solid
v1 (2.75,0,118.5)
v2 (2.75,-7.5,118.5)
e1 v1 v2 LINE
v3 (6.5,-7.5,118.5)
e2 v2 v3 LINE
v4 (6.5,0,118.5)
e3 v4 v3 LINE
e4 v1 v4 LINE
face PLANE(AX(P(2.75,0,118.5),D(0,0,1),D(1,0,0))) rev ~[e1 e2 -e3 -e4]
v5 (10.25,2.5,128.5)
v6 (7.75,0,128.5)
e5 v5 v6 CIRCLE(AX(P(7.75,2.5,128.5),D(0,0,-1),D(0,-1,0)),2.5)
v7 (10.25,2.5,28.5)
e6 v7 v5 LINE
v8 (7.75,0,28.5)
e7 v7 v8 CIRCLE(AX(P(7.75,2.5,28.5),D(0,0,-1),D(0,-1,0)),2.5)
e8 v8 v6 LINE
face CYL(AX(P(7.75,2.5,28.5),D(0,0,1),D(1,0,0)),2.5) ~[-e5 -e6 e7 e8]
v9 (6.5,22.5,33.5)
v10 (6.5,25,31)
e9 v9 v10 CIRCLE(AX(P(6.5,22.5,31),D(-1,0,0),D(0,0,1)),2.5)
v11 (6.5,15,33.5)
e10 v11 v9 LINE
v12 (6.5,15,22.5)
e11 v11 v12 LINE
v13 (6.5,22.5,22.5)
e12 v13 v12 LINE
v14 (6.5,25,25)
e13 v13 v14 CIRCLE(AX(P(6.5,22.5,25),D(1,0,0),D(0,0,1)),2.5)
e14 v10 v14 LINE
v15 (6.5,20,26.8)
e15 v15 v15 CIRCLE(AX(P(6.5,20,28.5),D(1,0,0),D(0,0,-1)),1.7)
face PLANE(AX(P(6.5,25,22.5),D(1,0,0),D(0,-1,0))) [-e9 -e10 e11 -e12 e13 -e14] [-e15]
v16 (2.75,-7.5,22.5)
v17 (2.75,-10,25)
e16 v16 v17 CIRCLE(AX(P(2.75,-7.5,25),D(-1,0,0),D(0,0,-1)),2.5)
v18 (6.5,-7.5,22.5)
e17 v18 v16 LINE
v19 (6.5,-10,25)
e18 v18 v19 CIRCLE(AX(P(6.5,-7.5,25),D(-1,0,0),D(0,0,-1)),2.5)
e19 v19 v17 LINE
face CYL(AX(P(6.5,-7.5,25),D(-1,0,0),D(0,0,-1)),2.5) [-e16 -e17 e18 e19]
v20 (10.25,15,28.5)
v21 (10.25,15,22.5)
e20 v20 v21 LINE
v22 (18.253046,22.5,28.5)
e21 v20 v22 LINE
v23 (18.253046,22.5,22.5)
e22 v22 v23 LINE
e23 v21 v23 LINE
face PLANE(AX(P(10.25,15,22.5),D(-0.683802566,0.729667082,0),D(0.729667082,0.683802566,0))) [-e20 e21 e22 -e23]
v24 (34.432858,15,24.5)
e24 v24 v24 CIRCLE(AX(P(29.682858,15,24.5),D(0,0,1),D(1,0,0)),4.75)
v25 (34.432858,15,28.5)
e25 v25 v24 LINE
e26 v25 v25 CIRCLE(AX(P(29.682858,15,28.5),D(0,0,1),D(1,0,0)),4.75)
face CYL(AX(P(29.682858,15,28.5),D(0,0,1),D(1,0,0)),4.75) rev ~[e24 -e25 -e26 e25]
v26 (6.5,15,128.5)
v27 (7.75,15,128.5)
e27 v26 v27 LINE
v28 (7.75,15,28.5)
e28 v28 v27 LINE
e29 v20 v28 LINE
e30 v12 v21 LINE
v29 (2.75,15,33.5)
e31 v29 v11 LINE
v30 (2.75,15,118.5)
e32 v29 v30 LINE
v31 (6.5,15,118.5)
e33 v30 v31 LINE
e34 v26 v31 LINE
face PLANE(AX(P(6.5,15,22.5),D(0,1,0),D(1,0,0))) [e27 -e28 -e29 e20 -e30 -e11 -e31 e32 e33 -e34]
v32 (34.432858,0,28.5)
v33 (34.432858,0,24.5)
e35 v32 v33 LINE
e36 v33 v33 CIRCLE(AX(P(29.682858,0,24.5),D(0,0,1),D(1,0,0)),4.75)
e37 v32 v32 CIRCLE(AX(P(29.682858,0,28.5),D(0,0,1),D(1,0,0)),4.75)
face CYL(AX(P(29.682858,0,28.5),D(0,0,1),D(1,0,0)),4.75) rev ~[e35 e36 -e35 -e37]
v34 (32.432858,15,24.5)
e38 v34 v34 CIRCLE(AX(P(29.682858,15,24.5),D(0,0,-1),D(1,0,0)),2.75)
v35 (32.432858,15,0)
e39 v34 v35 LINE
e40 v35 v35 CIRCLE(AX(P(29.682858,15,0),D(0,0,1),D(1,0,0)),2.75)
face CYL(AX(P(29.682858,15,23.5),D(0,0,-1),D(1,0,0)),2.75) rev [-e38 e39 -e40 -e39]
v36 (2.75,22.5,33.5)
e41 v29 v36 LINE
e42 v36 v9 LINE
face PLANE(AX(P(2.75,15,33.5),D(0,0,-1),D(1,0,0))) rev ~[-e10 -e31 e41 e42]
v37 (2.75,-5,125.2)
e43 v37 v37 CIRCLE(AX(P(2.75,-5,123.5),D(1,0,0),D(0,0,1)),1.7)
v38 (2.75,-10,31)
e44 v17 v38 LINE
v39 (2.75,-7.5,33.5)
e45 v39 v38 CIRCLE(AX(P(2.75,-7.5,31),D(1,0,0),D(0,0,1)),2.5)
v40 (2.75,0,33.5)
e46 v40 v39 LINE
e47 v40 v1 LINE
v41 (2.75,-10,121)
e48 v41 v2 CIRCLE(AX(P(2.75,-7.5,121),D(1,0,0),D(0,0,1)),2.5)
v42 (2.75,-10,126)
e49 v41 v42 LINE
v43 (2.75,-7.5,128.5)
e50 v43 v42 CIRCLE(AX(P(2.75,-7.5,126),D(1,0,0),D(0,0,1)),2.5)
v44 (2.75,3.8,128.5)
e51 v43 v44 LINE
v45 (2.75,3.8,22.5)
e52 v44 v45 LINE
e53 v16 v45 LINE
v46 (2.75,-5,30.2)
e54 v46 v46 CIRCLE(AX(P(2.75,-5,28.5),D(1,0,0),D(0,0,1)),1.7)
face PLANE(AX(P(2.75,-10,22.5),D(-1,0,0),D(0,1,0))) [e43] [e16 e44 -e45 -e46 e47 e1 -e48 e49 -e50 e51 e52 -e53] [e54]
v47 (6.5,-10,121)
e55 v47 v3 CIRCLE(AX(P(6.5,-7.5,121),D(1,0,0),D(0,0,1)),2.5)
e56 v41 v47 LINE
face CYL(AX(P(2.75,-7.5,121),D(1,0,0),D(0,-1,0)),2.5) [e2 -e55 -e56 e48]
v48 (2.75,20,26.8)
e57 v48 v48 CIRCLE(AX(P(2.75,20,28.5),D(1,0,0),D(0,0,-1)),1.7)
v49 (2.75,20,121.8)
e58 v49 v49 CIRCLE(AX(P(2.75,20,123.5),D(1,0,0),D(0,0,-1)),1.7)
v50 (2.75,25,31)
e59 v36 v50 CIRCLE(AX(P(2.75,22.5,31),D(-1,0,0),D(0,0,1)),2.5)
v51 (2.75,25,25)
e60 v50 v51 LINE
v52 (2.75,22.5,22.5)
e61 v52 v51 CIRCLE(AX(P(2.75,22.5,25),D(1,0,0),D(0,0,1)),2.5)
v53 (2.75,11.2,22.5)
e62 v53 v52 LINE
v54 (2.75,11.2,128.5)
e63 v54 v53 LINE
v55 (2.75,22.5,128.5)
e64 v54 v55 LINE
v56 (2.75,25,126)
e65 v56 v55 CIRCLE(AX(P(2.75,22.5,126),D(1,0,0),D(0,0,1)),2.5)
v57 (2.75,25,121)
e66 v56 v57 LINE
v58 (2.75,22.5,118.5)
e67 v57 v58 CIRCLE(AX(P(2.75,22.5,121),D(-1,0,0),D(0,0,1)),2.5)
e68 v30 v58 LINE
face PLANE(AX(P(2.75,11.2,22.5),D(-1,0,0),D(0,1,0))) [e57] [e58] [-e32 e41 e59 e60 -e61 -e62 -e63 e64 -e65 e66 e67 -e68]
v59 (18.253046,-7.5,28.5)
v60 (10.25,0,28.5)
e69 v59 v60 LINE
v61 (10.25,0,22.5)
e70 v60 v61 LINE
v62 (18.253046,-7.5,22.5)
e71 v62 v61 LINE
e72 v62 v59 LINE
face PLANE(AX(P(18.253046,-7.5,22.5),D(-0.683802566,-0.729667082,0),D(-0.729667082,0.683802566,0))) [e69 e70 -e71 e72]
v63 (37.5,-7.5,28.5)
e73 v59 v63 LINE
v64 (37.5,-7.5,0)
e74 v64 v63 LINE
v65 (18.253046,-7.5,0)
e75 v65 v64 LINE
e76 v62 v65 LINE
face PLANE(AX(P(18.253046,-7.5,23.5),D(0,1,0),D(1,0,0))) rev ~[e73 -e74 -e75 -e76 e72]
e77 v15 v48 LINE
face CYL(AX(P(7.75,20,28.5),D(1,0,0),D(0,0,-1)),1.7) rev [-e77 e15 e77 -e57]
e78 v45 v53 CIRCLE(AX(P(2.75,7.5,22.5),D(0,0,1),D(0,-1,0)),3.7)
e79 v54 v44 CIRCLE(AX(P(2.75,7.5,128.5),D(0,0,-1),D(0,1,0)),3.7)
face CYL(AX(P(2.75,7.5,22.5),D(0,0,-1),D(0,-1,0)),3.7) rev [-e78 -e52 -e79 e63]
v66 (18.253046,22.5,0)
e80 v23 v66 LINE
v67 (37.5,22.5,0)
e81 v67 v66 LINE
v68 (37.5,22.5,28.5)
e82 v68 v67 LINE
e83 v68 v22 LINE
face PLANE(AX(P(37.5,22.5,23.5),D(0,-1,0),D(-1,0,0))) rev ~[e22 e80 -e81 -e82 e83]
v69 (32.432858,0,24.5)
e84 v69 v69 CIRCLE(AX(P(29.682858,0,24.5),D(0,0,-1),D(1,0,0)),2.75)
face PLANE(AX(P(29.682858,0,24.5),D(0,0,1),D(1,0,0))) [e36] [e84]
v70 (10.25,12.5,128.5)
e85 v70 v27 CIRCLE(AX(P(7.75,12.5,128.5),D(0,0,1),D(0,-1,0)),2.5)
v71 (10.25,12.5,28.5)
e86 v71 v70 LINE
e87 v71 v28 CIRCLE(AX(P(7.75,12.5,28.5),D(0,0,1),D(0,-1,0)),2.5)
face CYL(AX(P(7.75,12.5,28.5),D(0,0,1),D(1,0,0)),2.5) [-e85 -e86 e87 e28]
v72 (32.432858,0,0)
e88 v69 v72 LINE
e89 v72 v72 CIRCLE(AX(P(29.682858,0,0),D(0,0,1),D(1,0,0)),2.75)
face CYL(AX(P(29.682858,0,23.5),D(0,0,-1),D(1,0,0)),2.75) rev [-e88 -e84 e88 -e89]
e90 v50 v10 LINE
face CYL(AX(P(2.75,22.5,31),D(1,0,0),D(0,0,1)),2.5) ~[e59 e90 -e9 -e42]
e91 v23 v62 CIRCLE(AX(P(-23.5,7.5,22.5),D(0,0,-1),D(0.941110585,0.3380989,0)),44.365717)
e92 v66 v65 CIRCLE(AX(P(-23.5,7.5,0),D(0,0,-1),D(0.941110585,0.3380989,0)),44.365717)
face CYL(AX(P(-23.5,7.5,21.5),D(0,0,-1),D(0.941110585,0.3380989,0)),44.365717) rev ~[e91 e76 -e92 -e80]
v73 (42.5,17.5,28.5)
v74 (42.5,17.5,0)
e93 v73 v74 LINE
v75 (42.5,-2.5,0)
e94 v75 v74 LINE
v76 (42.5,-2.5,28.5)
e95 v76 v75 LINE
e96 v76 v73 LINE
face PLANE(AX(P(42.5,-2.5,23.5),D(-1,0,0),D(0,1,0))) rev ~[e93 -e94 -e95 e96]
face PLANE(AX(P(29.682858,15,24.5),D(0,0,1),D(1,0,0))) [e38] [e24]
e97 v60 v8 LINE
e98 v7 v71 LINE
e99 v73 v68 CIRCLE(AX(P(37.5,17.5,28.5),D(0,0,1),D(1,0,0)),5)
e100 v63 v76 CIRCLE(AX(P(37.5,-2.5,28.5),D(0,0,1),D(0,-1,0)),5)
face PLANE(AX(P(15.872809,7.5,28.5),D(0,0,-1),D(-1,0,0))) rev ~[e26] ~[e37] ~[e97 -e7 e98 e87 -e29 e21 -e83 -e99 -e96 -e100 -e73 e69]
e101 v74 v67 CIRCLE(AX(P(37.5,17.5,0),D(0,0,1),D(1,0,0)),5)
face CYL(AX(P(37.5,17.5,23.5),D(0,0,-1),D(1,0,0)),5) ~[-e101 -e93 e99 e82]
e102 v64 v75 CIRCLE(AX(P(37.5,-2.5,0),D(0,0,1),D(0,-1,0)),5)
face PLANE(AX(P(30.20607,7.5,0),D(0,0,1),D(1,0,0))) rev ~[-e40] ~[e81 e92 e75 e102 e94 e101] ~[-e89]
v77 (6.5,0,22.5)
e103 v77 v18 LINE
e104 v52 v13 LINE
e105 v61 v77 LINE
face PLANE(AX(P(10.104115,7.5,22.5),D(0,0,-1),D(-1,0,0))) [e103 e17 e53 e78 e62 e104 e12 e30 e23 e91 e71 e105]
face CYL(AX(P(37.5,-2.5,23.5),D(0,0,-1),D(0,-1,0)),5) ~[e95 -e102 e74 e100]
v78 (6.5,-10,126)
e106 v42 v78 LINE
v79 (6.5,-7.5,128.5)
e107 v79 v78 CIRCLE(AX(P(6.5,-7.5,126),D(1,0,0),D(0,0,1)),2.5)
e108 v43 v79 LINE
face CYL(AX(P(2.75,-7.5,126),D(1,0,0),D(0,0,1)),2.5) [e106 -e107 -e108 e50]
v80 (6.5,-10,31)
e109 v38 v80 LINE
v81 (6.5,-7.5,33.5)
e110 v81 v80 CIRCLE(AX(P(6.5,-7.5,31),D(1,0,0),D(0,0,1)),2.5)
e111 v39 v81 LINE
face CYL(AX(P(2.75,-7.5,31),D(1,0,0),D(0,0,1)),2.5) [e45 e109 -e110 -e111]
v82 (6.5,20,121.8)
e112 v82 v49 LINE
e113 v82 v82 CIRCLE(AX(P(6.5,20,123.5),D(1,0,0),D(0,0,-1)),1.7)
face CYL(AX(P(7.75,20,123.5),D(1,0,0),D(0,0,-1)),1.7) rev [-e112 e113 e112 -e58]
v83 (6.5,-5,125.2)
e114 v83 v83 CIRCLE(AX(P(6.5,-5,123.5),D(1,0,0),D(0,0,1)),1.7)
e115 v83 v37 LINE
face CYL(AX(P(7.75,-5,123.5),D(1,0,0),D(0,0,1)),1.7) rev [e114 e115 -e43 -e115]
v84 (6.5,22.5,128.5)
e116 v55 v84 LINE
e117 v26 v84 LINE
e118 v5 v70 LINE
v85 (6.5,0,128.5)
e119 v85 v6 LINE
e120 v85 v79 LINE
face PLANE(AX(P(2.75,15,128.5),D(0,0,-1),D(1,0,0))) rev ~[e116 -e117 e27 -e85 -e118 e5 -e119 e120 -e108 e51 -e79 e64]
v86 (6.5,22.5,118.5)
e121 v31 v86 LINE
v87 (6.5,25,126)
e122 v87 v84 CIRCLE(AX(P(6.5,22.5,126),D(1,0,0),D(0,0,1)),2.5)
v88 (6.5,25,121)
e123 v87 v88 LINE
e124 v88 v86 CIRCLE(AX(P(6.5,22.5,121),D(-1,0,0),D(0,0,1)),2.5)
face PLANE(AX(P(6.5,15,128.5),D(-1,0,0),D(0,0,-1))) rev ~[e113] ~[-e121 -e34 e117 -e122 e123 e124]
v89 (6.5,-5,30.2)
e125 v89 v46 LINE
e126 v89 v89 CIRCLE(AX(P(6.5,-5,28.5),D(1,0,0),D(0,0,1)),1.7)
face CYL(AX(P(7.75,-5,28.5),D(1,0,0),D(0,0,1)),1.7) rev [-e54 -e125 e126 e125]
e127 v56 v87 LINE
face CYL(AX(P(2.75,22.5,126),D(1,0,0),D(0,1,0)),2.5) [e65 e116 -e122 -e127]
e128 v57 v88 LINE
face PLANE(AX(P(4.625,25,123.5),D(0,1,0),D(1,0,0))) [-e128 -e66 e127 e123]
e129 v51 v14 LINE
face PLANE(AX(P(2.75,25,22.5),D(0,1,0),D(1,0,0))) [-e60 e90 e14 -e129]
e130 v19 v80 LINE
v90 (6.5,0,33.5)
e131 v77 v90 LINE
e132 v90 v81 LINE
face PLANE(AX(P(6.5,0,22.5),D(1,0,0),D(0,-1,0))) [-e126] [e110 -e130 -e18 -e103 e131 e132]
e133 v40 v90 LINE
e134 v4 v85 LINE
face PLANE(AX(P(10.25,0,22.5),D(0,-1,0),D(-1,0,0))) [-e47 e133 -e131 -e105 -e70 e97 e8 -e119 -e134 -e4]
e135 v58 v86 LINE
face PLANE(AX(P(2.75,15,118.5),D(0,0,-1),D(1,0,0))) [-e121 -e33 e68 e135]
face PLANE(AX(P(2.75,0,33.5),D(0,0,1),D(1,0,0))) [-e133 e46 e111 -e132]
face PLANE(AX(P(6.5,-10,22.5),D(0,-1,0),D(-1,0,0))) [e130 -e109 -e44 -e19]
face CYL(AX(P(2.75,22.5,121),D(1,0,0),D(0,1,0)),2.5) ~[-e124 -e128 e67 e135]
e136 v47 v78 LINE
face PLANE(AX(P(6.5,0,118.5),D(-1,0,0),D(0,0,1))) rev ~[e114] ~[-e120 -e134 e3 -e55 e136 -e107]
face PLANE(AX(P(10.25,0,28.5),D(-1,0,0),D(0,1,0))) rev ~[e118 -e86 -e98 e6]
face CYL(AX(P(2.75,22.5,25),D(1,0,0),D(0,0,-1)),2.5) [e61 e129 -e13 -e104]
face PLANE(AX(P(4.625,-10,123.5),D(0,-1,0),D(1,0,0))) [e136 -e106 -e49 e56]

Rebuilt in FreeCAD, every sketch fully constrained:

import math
import FreeCAD as App
import Part
import Sketcher

V = App.Vector


def edges_at(feature, points):
    """Names of the edges that pass closest to the given points."""
    edges = feature.Shape.Edges
    near = lambda p: min(range(len(edges)), key=lambda i: edges[i].distToShape(Part.Vertex(*p))[0])
    return sorted({f"Edge{near(p) + 1}" for p in points})


def add_polygon(sketch, points):
    """Adds a closed chain of lines whose ends are joined by coincident constraints."""
    first, n = sketch.GeometryCount, len(points)
    for a, b in zip(points, points[1:] + points[:1]):
        sketch.addGeometry(Part.LineSegment(App.Vector(*a, 0), App.Vector(*b, 0)), False)
    for i in range(n):
        sketch.addConstraint(Sketcher.Constraint("Coincident", first + i, 2, first + (i + 1) % n, 1))

doc = App.newDocument("Part")
body = doc.addObject("PartDesign::Body", "Body")

# Sketch on XY plane
sketch1 = body.newObject("Sketcher::SketchObject", "Sketch")
sketch1.AttachmentSupport = (doc.getObject("XY_Plane"), [""])
sketch1.MapMode = "FlatFace"
sketch1.addGeometry([
    Part.ArcOfCircle(Part.Circle(V(37.5, -2.5, 0), V(0, 0, 1), 5), math.radians(-90), math.radians(0)),  # 0
    Part.LineSegment(V(42.5, -2.5, 0), V(42.5, 17.5, 0)),  # 1
    Part.ArcOfCircle(Part.Circle(V(37.5, 17.5, 0), V(0, 0, 1), 5), math.radians(0), math.radians(90)),  # 2
    Part.LineSegment(V(37.5, 22.5, 0), V(18.3, 22.5, 0)),  # 3
    Part.ArcOfCircle(Part.Circle(V(-23.5, 7.5, 0), V(0, 0, 1), 44.4), math.radians(-20), math.radians(20)),  # 4
    Part.LineSegment(V(18.3, -7.5, 0), V(37.5, -7.5, 0)),  # 5
    Part.Circle(V(29.7, 0, 0), V(0, 0, 1), 2.8),  # 6
    Part.Circle(V(29.7, 15, 0), V(0, 0, 1), 2.8),  # 7
], False)
sketch1.addConstraint([
    Sketcher.Constraint("Tangent", 0, 2, 1, 1),
    Sketcher.Constraint("Tangent", 1, 2, 2, 1),
    Sketcher.Constraint("Tangent", 2, 2, 3, 1),
    Sketcher.Constraint("Coincident", 3, 2, 4, 2),
    Sketcher.Constraint("Coincident", 4, 1, 5, 1),
    Sketcher.Constraint("Tangent", 5, 2, 0, 1),
    Sketcher.Constraint("Vertical", 1),
    Sketcher.Constraint("Horizontal", 3),
    Sketcher.Constraint("Horizontal", 5),
    Sketcher.Constraint("Equal", 0, 2),
    Sketcher.Constraint("Equal", 6, 7),
    Sketcher.Constraint("PointOnObject", 6, 3, -1),
    Sketcher.Constraint("Vertical", 6, 3, 7, 3),
    Sketcher.Constraint("Vertical", 3, 2, 4, 1),
    Sketcher.Constraint("Radius", 0, 5.0),
    Sketcher.Constraint("Diameter", 6, 5.5),
    Sketcher.Constraint("DistanceY", 1, 1, 1, 2, 20.0),
    Sketcher.Constraint("DistanceY", -1, 1, 7, 3, 15.0),
    Sketcher.Constraint("DistanceX", 4, 3, 0, 3, 61.0),
    Sketcher.Constraint("DistanceX", -1, 1, 0, 3, 37.5),
    Sketcher.Constraint("DistanceY", 0, 3, -1, 1, 2.5),
    Sketcher.Constraint("Radius", 4, 44.365717),
    Sketcher.Constraint("DistanceX", -1, 1, 6, 3, 29.682858),
])
pad1 = body.newObject("PartDesign::Pad", "Pad")
pad1.Profile = sketch1
pad1.Length = 21.5

# Sketch on XY plane
sketch2 = body.newObject("Sketcher::SketchObject", "Sketch001")
sketch2.AttachmentSupport = (doc.getObject("XY_Plane"), [""])
sketch2.MapMode = "FlatFace"
sketch2.AttachmentOffset = App.Placement(V(0, 0, 21.5), App.Rotation())
sketch2.addGeometry([
    Part.LineSegment(V(18.3, -7.5, 0), V(37.5, -7.5, 0)),  # 0
    Part.ArcOfCircle(Part.Circle(V(37.5, -2.5, 0), V(0, 0, 1), 5), math.radians(-90), math.radians(0)),  # 1
    Part.LineSegment(V(42.5, -2.5, 0), V(42.5, 17.5, 0)),  # 2
    Part.ArcOfCircle(Part.Circle(V(37.5, 17.5, 0), V(0, 0, 1), 5), math.radians(0), math.radians(90)),  # 3
    Part.LineSegment(V(37.5, 22.5, 0), V(18.3, 22.5, 0)),  # 4
    Part.ArcOfCircle(Part.Circle(V(-23.5, 7.5, 0), V(0, 0, 1), 44.4), math.radians(-20), math.radians(20)),  # 5
    Part.Circle(V(29.7, 0, 0), V(0, 0, 1), 2.8),  # 6
    Part.Circle(V(29.7, 15, 0), V(0, 0, 1), 2.8),  # 7
], False)
sketch2.addConstraint([
    Sketcher.Constraint("Tangent", 0, 2, 1, 1),
    Sketcher.Constraint("Tangent", 1, 2, 2, 1),
    Sketcher.Constraint("Tangent", 2, 2, 3, 1),
    Sketcher.Constraint("Tangent", 3, 2, 4, 1),
    Sketcher.Constraint("Coincident", 4, 2, 5, 2),
    Sketcher.Constraint("Coincident", 5, 1, 0, 1),
    Sketcher.Constraint("Horizontal", 0),
    Sketcher.Constraint("Vertical", 2),
    Sketcher.Constraint("Horizontal", 4),
    Sketcher.Constraint("Equal", 1, 3),
    Sketcher.Constraint("Equal", 6, 7),
    Sketcher.Constraint("PointOnObject", 6, 3, -1),
    Sketcher.Constraint("Vertical", 6, 3, 7, 3),
    Sketcher.Constraint("Vertical", 4, 2, 5, 1),
    Sketcher.Constraint("Radius", 1, 5.0),
    Sketcher.Constraint("Diameter", 6, 5.5),
    Sketcher.Constraint("DistanceY", 2, 1, 2, 2, 20.0),
    Sketcher.Constraint("DistanceY", -1, 1, 7, 3, 15.0),
    Sketcher.Constraint("DistanceX", 5, 3, 1, 3, 61.0),
    Sketcher.Constraint("DistanceX", -1, 1, 1, 3, 37.5),
    Sketcher.Constraint("DistanceY", 1, 3, -1, 1, 2.5),
    Sketcher.Constraint("Radius", 5, 44.365717),
    Sketcher.Constraint("DistanceX", -1, 1, 6, 3, 29.682858),
])
pad2 = body.newObject("PartDesign::Pad", "Pad001")
pad2.Profile = sketch2
pad2.Length = 2

# Sketch on XY plane
sketch3 = body.newObject("Sketcher::SketchObject", "Sketch002")
sketch3.AttachmentSupport = (doc.getObject("XY_Plane"), [""])
sketch3.MapMode = "FlatFace"
sketch3.AttachmentOffset = App.Placement(V(0, 0, 23.5), App.Rotation())
sketch3.addGeometry([
    Part.LineSegment(V(18.3, 22.5, 0), V(10.2, 15, 0)),  # 0
    Part.LineSegment(V(10.2, 15, 0), V(-4.8, 15, 0)),  # 1
    Part.LineSegment(V(-4.8, 15, 0), V(-4.8, 0, 0)),  # 2
    Part.LineSegment(V(-4.8, 0, 0), V(10.2, 0, 0)),  # 3
    Part.LineSegment(V(10.2, 0, 0), V(18.3, -7.5, 0)),  # 4
    Part.LineSegment(V(18.3, -7.5, 0), V(37.5, -7.5, 0)),  # 5
    Part.ArcOfCircle(Part.Circle(V(37.5, -2.5, 0), V(0, 0, 1), 5), math.radians(-90), math.radians(0)),  # 6
    Part.LineSegment(V(42.5, -2.5, 0), V(42.5, 17.5, 0)),  # 7
    Part.ArcOfCircle(Part.Circle(V(37.5, 17.5, 0), V(0, 0, 1), 5), math.radians(0), math.radians(90)),  # 8
    Part.LineSegment(V(37.5, 22.5, 0), V(18.3, 22.5, 0)),  # 9
    Part.Circle(V(2.8, 7.5, 0), V(0, 0, 1), 3.7),  # 10
    Part.Circle(V(29.7, 15, 0), V(0, 0, 1), 2.8),  # 11
    Part.Circle(V(29.7, 0, 0), V(0, 0, 1), 2.8),  # 12
], False)
sketch3.addConstraint([
    Sketcher.Constraint("Coincident", 0, 2, 1, 1),
    Sketcher.Constraint("Coincident", 1, 2, 2, 1),
    Sketcher.Constraint("Coincident", 2, 2, 3, 1),
    Sketcher.Constraint("Coincident", 3, 2, 4, 1),
    Sketcher.Constraint("Coincident", 4, 2, 5, 1),
    Sketcher.Constraint("Tangent", 5, 2, 6, 1),
    Sketcher.Constraint("Tangent", 6, 2, 7, 1),
    Sketcher.Constraint("Tangent", 7, 2, 8, 1),
    Sketcher.Constraint("Tangent", 8, 2, 9, 1),
    Sketcher.Constraint("Coincident", 9, 2, 0, 1),
    Sketcher.Constraint("Horizontal", 1),
    Sketcher.Constraint("Vertical", 2),
    Sketcher.Constraint("Horizontal", 3),
    Sketcher.Constraint("Horizontal", 5),
    Sketcher.Constraint("Vertical", 7),
    Sketcher.Constraint("Horizontal", 9),
    Sketcher.Constraint("Equal", 6, 8),
    Sketcher.Constraint("Equal", 11, 12),
    Sketcher.Constraint("PointOnObject", 12, 3, -1),
    Sketcher.Constraint("PointOnObject", 2, 2, -1),
    Sketcher.Constraint("Horizontal", 11, 3, 0, 2),
    Sketcher.Constraint("Vertical", 11, 3, 12, 3),
    Sketcher.Constraint("Vertical", 0, 2, 3, 2),
    Sketcher.Constraint("Vertical", 4, 2, 9, 2),
    Sketcher.Constraint("Equal", 3, 2),
    Sketcher.Constraint("Equal", 0, 4),
    Sketcher.Constraint("Radius", 6, 5.0),
    Sketcher.Constraint("Diameter", 10, 7.4),
    Sketcher.Constraint("Diameter", 11, 5.5),
    Sketcher.Constraint("DistanceX", 1, 2, 1, 1, 15.0),
    Sketcher.Constraint("DistanceY", 7, 1, 7, 2, 20.0),
    Sketcher.Constraint("DistanceY", 6, 3, 10, 3, 10.0),
    Sketcher.Constraint("DistanceX", -1, 1, 6, 3, 37.5),
    Sketcher.Constraint("DistanceX", 10, 3, 0, 2, 7.5),
    Sketcher.Constraint("DistanceX", -1, 1, 10, 3, 2.75),
    Sketcher.Constraint("Distance", 0, 10.968078),
    Sketcher.Constraint("DistanceX", -1, 1, 11, 3, 29.682858),
])
pad3 = body.newObject("PartDesign::Pad", "Pad002")
pad3.Profile = sketch3
pad3.Length = 5

# Sketch on XY plane
sketch4 = body.newObject("Sketcher::SketchObject", "Sketch003")
sketch4.AttachmentSupport = (doc.getObject("XY_Plane"), [""])
sketch4.MapMode = "FlatFace"
sketch4.AttachmentOffset = App.Placement(V(0, 0, 28.5), App.Rotation())
add_polygon(sketch4, [(-4.8, 15), (-4.8, 0), (10.2, 0), (10.2, 15)])  # lines 0-3
sketch4.addGeometry(Part.Circle(V(2.8, 7.5, 0), V(0, 0, 1), 3.7), False)  # 4
sketch4.addConstraint([
    Sketcher.Constraint("Vertical", 0),
    Sketcher.Constraint("Horizontal", 1),
    Sketcher.Constraint("Vertical", 2),
    Sketcher.Constraint("Horizontal", 3),
    Sketcher.Constraint("PointOnObject", 0, 2, -1),
    Sketcher.Constraint("Equal", 3, 0),
    Sketcher.Constraint("Diameter", 4, 7.4),
    Sketcher.Constraint("DistanceX", 1, 1, 1, 2, 15.0),
    Sketcher.Constraint("DistanceY", -1, 1, 4, 3, 7.5),
    Sketcher.Constraint("DistanceX", 0, 2, 4, 3, 7.5),
    Sketcher.Constraint("DistanceX", -1, 1, 4, 3, 2.75),
])
pad4 = body.newObject("PartDesign::Pad", "Pad003")
pad4.Profile = sketch4
pad4.Length = 100

# Sketch on XY plane
sketch5 = body.newObject("Sketcher::SketchObject", "Sketch004")
sketch5.AttachmentSupport = (doc.getObject("XY_Plane"), [""])
sketch5.MapMode = "FlatFace"
sketch5.AttachmentOffset = App.Placement(V(0, 0, 128.5), App.Rotation())
sketch5.addGeometry([
    Part.ArcOfCircle(Part.Circle(V(2.8, 7.5, 0), V(0, 0, 1), 3.7), math.radians(90), math.radians(270)),  # 0
    Part.LineSegment(V(2.8, 11.2, 0), V(2.8, 15, 0)),  # 1
    Part.LineSegment(V(2.8, 15, 0), V(-4.8, 15, 0)),  # 2
    Part.LineSegment(V(-4.8, 15, 0), V(-4.8, 0, 0)),  # 3
    Part.LineSegment(V(-4.8, 0, 0), V(2.8, 0, 0)),  # 4
    Part.LineSegment(V(2.8, 0, 0), V(2.8, 3.8, 0)),  # 5
], False)
sketch5.addConstraint([
    Sketcher.Constraint("Coincident", 0, 1, 1, 1),
    Sketcher.Constraint("Coincident", 1, 2, 2, 1),
    Sketcher.Constraint("Coincident", 2, 2, 3, 1),
    Sketcher.Constraint("Coincident", 3, 2, 4, 1),
    Sketcher.Constraint("Coincident", 4, 2, 5, 1),
    Sketcher.Constraint("Coincident", 5, 2, 0, 2),
    Sketcher.Constraint("Vertical", 1),
    Sketcher.Constraint("Horizontal", 2),
    Sketcher.Constraint("Vertical", 3),
    Sketcher.Constraint("Horizontal", 4),
    Sketcher.Constraint("Vertical", 5),
    Sketcher.Constraint("PointOnObject", 3, 2, -1),
    Sketcher.Constraint("Vertical", 1, 2, 4, 2),
    Sketcher.Constraint("Equal", 1, 5),
    Sketcher.Constraint("Radius", 0, 3.7),
    Sketcher.Constraint("DistanceY", 3, 2, 3, 1, 15.0),
    Sketcher.Constraint("DistanceX", 2, 2, 2, 1, 7.5),
    Sketcher.Constraint("DistanceX", 2, 2, 0, 3, 7.5),
    Sketcher.Constraint("DistanceX", -1, 1, 0, 3, 2.75),
])
pocket1 = body.newObject("PartDesign::Pocket", "Pocket")
pocket1.Profile = sketch5
pocket1.Type = "ThroughAll"
pocket1.Midplane = True

# Sketch on XZ plane
sketch6 = body.newObject("Sketcher::SketchObject", "Sketch005")
sketch6.AttachmentSupport = (doc.getObject("XZ_Plane"), [""])
sketch6.MapMode = "FlatFace"
add_polygon(sketch6, [(2.8, 128.5), (2.8, 118.5), (6.5, 118.5), (6.5, 128.5)])  # lines 0-3
add_polygon(sketch6, [(2.8, 33.5), (2.8, 23.5), (6.5, 23.5), (6.5, 33.5)])  # lines 4-7
sketch6.addConstraint([
    Sketcher.Constraint("Vertical", 0),
    Sketcher.Constraint("Horizontal", 1),
    Sketcher.Constraint("Vertical", 2),
    Sketcher.Constraint("Horizontal", 3),
    Sketcher.Constraint("Vertical", 4),
    Sketcher.Constraint("Horizontal", 5),
    Sketcher.Constraint("Vertical", 6),
    Sketcher.Constraint("Horizontal", 7),
    Sketcher.Constraint("Vertical", 3, 2, 4, 2),
    Sketcher.Constraint("Vertical", 2, 2, 5, 2),
    Sketcher.Constraint("Equal", 2, 4),
    Sketcher.Constraint("DistanceY", 0, 2, 0, 1, 10.0),
    Sketcher.Constraint("DistanceY", 4, 2, 0, 2, 95.0),
    Sketcher.Constraint("DistanceX", 1, 1, 1, 2, 3.75),
    Sketcher.Constraint("DistanceY", -1, 1, 0, 2, 118.5),
    Sketcher.Constraint("DistanceX", -1, 1, 1, 2, 6.5),
])
pad5 = body.newObject("PartDesign::Pad", "Pad004")
pad5.Profile = sketch6
pad5.Length = 10

# Sketch on XZ plane
sketch7 = body.newObject("Sketcher::SketchObject", "Sketch006")
sketch7.AttachmentSupport = (doc.getObject("XZ_Plane"), [""])
sketch7.MapMode = "FlatFace"
sketch7.AttachmentOffset = App.Placement(V(0, 0, -15), App.Rotation())
add_polygon(sketch7, [(2.8, 118.5), (2.8, 128.5), (6.5, 128.5), (6.5, 118.5)])  # lines 0-3
add_polygon(sketch7, [(2.8, 23.5), (2.8, 33.5), (6.5, 33.5), (6.5, 23.5)])  # lines 4-7
sketch7.addConstraint([
    Sketcher.Constraint("Vertical", 0),
    Sketcher.Constraint("Horizontal", 1),
    Sketcher.Constraint("Vertical", 2),
    Sketcher.Constraint("Horizontal", 3),
    Sketcher.Constraint("Vertical", 4),
    Sketcher.Constraint("Horizontal", 5),
    Sketcher.Constraint("Vertical", 6),
    Sketcher.Constraint("Horizontal", 7),
    Sketcher.Constraint("Vertical", 3, 2, 4, 2),
    Sketcher.Constraint("Vertical", 2, 2, 5, 2),
    Sketcher.Constraint("Equal", 2, 4),
    Sketcher.Constraint("DistanceY", 0, 1, 0, 2, 10.0),
    Sketcher.Constraint("DistanceY", 4, 2, 3, 2, 85.0),
    Sketcher.Constraint("DistanceX", 1, 1, 1, 2, 3.75),
    Sketcher.Constraint("DistanceY", -1, 1, 0, 2, 128.5),
    Sketcher.Constraint("DistanceX", -1, 1, 1, 2, 6.5),
])
pad6 = body.newObject("PartDesign::Pad", "Pad005")
pad6.Profile = sketch7
pad6.Length = 10
pad6.Reversed = True

# Sketch on YZ plane
sketch8 = body.newObject("Sketcher::SketchObject", "Sketch007")
sketch8.AttachmentSupport = (doc.getObject("YZ_Plane"), [""])
sketch8.MapMode = "FlatFace"
sketch8.AttachmentOffset = App.Placement(V(0, 0, 2.75), App.Rotation())
sketch8.addGeometry([
    Part.Circle(V(-5, 123.5, 0), V(0, 0, 1), 1.7),
    Part.Circle(V(20, 123.5, 0), V(0, 0, 1), 1.7),
    Part.Circle(V(20, 28.5, 0), V(0, 0, 1), 1.7),
    Part.Circle(V(-5, 28.5, 0), V(0, 0, 1), 1.7),
], False)
sketch8.addConstraint([
    Sketcher.Constraint("Equal", 0, 1),
    Sketcher.Constraint("Equal", 1, 2),
    Sketcher.Constraint("Equal", 2, 3),
    Sketcher.Constraint("Horizontal", 0, 3, 1, 3),
    Sketcher.Constraint("Horizontal", 2, 3, 3, 3),
    Sketcher.Constraint("Vertical", 1, 3, 2, 3),
    Sketcher.Constraint("Vertical", 0, 3, 3, 3),
    Sketcher.Constraint("Diameter", 0, 3.4),
    Sketcher.Constraint("DistanceX", 0, 3, -1, 1, 5.0),
    Sketcher.Constraint("DistanceX", -1, 1, 1, 3, 20.0),
    Sketcher.Constraint("DistanceY", 2, 3, 1, 3, 95.0),
    Sketcher.Constraint("DistanceY", -1, 1, 0, 3, 123.5),
])
pocket2 = body.newObject("PartDesign::Pocket", "Pocket001")
pocket2.Profile = sketch8
pocket2.Type = "TwoLengths"
pocket2.Length = 137.811229
pocket2.Length2 = 5

# Sketch on XY plane
sketch9 = body.newObject("Sketcher::SketchObject", "Sketch008")
sketch9.AttachmentSupport = (doc.getObject("XY_Plane"), [""])
sketch9.MapMode = "FlatFace"
sketch9.AttachmentOffset = App.Placement(V(0, 0, 22.5), App.Rotation())
sketch9.addGeometry([
    Part.LineSegment(V(2.8, -10, 0), V(2.8, 3.8, 0)),  # 0
    Part.ArcOfCircle(Part.Circle(V(2.8, 7.5, 0), V(0, 0, 1), 3.7), math.radians(-90), math.radians(90)),  # 1
    Part.LineSegment(V(2.8, 11.2, 0), V(2.8, 25, 0)),  # 2
    Part.LineSegment(V(2.8, 25, 0), V(6.5, 25, 0)),  # 3
    Part.LineSegment(V(6.5, 25, 0), V(6.5, 15, 0)),  # 4
    Part.LineSegment(V(6.5, 15, 0), V(10.2, 15, 0)),  # 5
    Part.LineSegment(V(10.2, 15, 0), V(18.3, 22.5, 0)),  # 6
    Part.ArcOfCircle(Part.Circle(V(-23.5, 7.5, 0), V(0, 0, 1), 44.4), math.radians(-20), math.radians(20)),  # 7
    Part.LineSegment(V(18.3, -7.5, 0), V(10.2, 0, 0)),  # 8
    Part.LineSegment(V(10.2, 0, 0), V(6.5, 0, 0)),  # 9
    Part.LineSegment(V(6.5, 0, 0), V(6.5, -10, 0)),  # 10
    Part.LineSegment(V(6.5, -10, 0), V(2.8, -10, 0)),  # 11
], False)
sketch9.addConstraint([
    Sketcher.Constraint("Coincident", 0, 2, 1, 1),
    Sketcher.Constraint("Coincident", 1, 2, 2, 1),
    Sketcher.Constraint("Coincident", 2, 2, 3, 1),
    Sketcher.Constraint("Coincident", 3, 2, 4, 1),
    Sketcher.Constraint("Coincident", 4, 2, 5, 1),
    Sketcher.Constraint("Coincident", 5, 2, 6, 1),
    Sketcher.Constraint("Coincident", 6, 2, 7, 2),
    Sketcher.Constraint("Coincident", 7, 1, 8, 1),
    Sketcher.Constraint("Coincident", 8, 2, 9, 1),
    Sketcher.Constraint("Coincident", 9, 2, 10, 1),
    Sketcher.Constraint("Coincident", 10, 2, 11, 1),
    Sketcher.Constraint("Coincident", 11, 2, 0, 1),
    Sketcher.Constraint("Vertical", 0),
    Sketcher.Constraint("Vertical", 2),
    Sketcher.Constraint("Horizontal", 3),
    Sketcher.Constraint("Vertical", 4),
    Sketcher.Constraint("Horizontal", 5),
    Sketcher.Constraint("Horizontal", 9),
    Sketcher.Constraint("Vertical", 10),
    Sketcher.Constraint("Horizontal", 11),
    Sketcher.Constraint("PointOnObject", 8, 2, -1),
    Sketcher.Constraint("Horizontal", 1, 3, 7, 3),
    Sketcher.Constraint("Vertical", 1, 3, 0, 2),
    Sketcher.Constraint("Vertical", 0, 2, 1, 2),
    Sketcher.Constraint("Vertical", 6, 2, 7, 1),
    Sketcher.Constraint("Vertical", 5, 2, 8, 2),
    Sketcher.Constraint("Vertical", 4, 2, 9, 2),
    Sketcher.Constraint("Equal", 3, 5),
    Sketcher.Constraint("Equal", 0, 2),
    Sketcher.Constraint("Equal", 4, 10),
    Sketcher.Constraint("Radius", 1, 3.7),
    Sketcher.Constraint("DistanceY", 4, 2, 4, 1, 10.0),
    Sketcher.Constraint("DistanceY", 0, 1, 0, 2, 13.8),
    Sketcher.Constraint("DistanceX", 7, 3, 3, 2, 30.0),
    Sketcher.Constraint("DistanceY", 7, 1, 1, 3, 15.0),
    Sketcher.Constraint("DistanceX", 3, 1, 3, 2, 3.75),
    Sketcher.Constraint("DistanceX", 7, 3, -1, 1, 23.5),
    Sketcher.Constraint("Radius", 7, 44.365717),
])
pad7 = body.newObject("PartDesign::Pad", "Pad006")
pad7.Profile = sketch9
pad7.Length = 1
doc.recompute()

fillet = body.newObject("PartDesign::Fillet", "Fillet")
fillet.Base = (pad7, edges_at(pad7, [
    (4.625, -10, 22.5),
    (4.625, -10, 33.5),
    (4.625, 25, 22.5),
    (4.625, 25, 33.5),
    (4.625, 25, 118.5),
    (4.625, 25, 128.5),
    (4.625, -10, 118.5),
    (4.625, -10, 128.5),
    (10.25, 0, 78.5),
    (10.25, 15, 78.5),
]))
fillet.Radius = 2.5

# Sketch on XY plane
sketch10 = body.newObject("Sketcher::SketchObject", "Sketch009")
sketch10.AttachmentSupport = (doc.getObject("XY_Plane"), [""])
sketch10.MapMode = "FlatFace"
sketch10.AttachmentOffset = App.Placement(V(0, 0, 28.5), App.Rotation())
sketch10.addGeometry([
    Part.Circle(V(29.7, 15, 0), V(0, 0, 1), 4.8),
    Part.Circle(V(29.7, 0, 0), V(0, 0, 1), 4.8),
], False)
sketch10.addConstraint([
    Sketcher.Constraint("Equal", 0, 1),
    Sketcher.Constraint("PointOnObject", 1, 3, -1),
    Sketcher.Constraint("Vertical", 0, 3, 1, 3),
    Sketcher.Constraint("Diameter", 0, 9.5),
    Sketcher.Constraint("DistanceY", -1, 1, 0, 3, 15.0),
    Sketcher.Constraint("DistanceX", -1, 1, 0, 3, 29.682858),
])
pocket3 = body.newObject("PartDesign::Pocket", "Pocket002")
pocket3.Profile = sketch10
pocket3.Length = 4

doc.recompute()
